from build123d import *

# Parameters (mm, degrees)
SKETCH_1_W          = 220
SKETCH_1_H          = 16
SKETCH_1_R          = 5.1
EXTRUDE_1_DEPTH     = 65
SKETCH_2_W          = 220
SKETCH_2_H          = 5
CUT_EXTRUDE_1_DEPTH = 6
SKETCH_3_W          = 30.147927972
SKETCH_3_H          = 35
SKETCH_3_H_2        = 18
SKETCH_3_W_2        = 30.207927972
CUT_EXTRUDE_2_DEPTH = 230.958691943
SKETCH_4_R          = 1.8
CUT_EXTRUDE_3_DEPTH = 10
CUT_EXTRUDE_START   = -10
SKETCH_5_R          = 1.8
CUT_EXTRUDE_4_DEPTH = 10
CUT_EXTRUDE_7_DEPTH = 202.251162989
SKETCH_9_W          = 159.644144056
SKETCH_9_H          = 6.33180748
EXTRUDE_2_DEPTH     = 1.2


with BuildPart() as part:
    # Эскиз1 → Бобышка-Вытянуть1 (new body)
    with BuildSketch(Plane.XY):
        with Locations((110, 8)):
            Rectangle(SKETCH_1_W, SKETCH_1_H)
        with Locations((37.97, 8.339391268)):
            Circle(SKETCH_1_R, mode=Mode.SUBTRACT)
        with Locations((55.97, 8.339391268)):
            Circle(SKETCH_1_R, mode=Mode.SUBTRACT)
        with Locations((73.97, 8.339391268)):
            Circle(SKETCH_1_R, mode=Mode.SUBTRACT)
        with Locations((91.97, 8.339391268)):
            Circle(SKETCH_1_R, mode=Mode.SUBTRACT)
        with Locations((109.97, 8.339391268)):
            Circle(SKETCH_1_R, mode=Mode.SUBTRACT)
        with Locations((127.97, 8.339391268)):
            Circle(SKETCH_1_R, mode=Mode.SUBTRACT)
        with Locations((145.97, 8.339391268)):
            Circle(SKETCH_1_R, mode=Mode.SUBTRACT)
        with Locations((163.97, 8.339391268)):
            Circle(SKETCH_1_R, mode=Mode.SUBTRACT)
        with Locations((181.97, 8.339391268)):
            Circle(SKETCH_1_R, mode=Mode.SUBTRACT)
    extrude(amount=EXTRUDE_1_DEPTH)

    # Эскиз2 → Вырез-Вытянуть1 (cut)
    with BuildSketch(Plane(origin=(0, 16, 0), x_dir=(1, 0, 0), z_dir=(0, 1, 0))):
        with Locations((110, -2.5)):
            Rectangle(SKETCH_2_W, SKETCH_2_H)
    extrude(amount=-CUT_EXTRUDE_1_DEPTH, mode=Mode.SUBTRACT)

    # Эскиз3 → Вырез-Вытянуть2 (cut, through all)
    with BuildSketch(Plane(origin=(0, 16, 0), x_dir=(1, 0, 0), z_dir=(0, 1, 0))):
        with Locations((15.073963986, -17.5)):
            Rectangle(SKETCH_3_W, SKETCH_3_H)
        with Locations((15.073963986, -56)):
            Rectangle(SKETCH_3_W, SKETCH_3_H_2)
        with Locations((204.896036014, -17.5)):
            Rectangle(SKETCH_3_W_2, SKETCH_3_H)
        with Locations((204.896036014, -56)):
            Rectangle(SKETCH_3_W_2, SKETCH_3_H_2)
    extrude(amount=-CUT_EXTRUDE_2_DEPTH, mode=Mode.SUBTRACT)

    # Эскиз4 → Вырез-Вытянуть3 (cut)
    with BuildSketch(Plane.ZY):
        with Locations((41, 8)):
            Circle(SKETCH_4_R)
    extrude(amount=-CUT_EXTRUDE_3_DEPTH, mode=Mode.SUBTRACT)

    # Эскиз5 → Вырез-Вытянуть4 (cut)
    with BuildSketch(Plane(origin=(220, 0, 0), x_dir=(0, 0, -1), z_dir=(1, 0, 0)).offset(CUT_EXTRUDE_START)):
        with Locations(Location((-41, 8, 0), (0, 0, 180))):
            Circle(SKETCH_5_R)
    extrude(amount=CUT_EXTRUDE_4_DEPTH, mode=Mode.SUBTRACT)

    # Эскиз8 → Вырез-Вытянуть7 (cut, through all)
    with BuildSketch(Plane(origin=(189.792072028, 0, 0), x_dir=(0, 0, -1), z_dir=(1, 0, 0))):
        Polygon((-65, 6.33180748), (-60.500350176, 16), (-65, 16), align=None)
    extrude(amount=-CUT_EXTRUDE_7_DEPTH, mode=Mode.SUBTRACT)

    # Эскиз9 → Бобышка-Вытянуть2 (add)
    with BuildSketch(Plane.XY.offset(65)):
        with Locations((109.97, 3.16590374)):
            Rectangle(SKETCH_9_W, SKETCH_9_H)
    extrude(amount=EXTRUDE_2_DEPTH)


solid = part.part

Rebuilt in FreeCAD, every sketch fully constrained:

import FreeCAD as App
import Part
import Sketcher
Q = App.Units.Quantity

doc = App.newDocument("Part")
params = doc.addObject("Spreadsheet::Sheet", "Params")
for row, (alias, value) in enumerate([
    ("sketch1_diameter", "10.2 mm"),
    ("sketch1_width", "220 mm"),
    ("sketch1_height", "16 mm"),
    ("pad1_length", "65 mm"),
    ("sketch2_width", "220 mm"),
    ("sketch2_height", "5 mm"),
    ("pocket1_length", "6 mm"),
    ("sketch3_height", "35 mm"),
    ("sketch3_height2", "18 mm"),
    ("sketch4_diameter", "3.6 mm"),
    ("pocket3_length", "10 mm"),
    ("sketch5_diameter", "3.6 mm"),
    ("pocket4_length", "10 mm"),
    ("pad2_length", "1.2 mm"),
], start=1):
    params.set(f"A{row}", alias)
    params.set(f"B{row}", "=" + value)
    params.setAlias(f"B{row}", alias)

body = doc.addObject("PartDesign::Body", "Body")

# Sketch on XY plane
sketch1 = body.newObject("Sketcher::SketchObject", "Sketch")
sketch1.AttachmentSupport = (doc.getObject("XY_Plane"), [""])
sketch1.MapMode = "FlatFace"
sketch1.addGeometry([
    Part.LineSegment(App.Vector(0, 16, 0), App.Vector(0, 0, 0)),  # 0
    Part.LineSegment(App.Vector(0, 0, 0), App.Vector(220, 0, 0)),  # 1
    Part.LineSegment(App.Vector(220, 0, 0), App.Vector(220, 16, 0)),  # 2
    Part.LineSegment(App.Vector(220, 16, 0), App.Vector(0, 16, 0)),  # 3
    Part.Circle(App.Vector(38, 8, 0), App.Vector(0, 0, 1), 5),  # 4
    Part.Circle(App.Vector(56, 8, 0), App.Vector(0, 0, 1), 5),  # 5
    Part.Circle(App.Vector(74, 8, 0), App.Vector(0, 0, 1), 5),  # 6
    Part.Circle(App.Vector(92, 8, 0), App.Vector(0, 0, 1), 5),  # 7
    Part.Circle(App.Vector(110, 8, 0), App.Vector(0, 0, 1), 5),  # 8
    Part.Circle(App.Vector(128, 8, 0), App.Vector(0, 0, 1), 5),  # 9
    Part.Circle(App.Vector(146, 8, 0), App.Vector(0, 0, 1), 5),  # 10
    Part.Circle(App.Vector(164, 8, 0), App.Vector(0, 0, 1), 5),  # 11
    Part.Circle(App.Vector(182, 8, 0), App.Vector(0, 0, 1), 5),  # 12
], False)
sketch1.addConstraint([
    Sketcher.Constraint("Coincident", 0, 2, 1, 1),
    Sketcher.Constraint("Coincident", 1, 2, 2, 1),
    Sketcher.Constraint("Coincident", 2, 2, 3, 1),
    Sketcher.Constraint("Coincident", 3, 2, 0, 1),
    Sketcher.Constraint("Vertical", 0),
    Sketcher.Constraint("Horizontal", 1),
    Sketcher.Constraint("Vertical", 2),
    Sketcher.Constraint("Horizontal", 3),
    Sketcher.Constraint("Coincident", 0, 2, -1, 1),
    Sketcher.Constraint("Equal", 4, 5),
    Sketcher.Constraint("Equal", 5, 6),
    Sketcher.Constraint("Equal", 6, 7),
    Sketcher.Constraint("Equal", 7, 8),
    Sketcher.Constraint("Equal", 8, 9),
    Sketcher.Constraint("Equal", 9, 10),
    Sketcher.Constraint("Equal", 10, 11),
    Sketcher.Constraint("Equal", 11, 12),
    Sketcher.Constraint("Horizontal", 4, 3, 5, 3),
    Sketcher.Constraint("Horizontal", 5, 3, 6, 3),
    Sketcher.Constraint("Horizontal", 6, 3, 7, 3),
    Sketcher.Constraint("Horizontal", 7, 3, 8, 3),
    Sketcher.Constraint("Horizontal", 8, 3, 9, 3),
    Sketcher.Constraint("Horizontal", 9, 3, 10, 3),
    Sketcher.Constraint("Horizontal", 10, 3, 11, 3),
    Sketcher.Constraint("Horizontal", 11, 3, 12, 3),
    Sketcher.Constraint("Diameter", 4, Q("10.2 mm")),
    Sketcher.Constraint("DistanceX", 1, 1, 1, 2, Q("220 mm")),
    Sketcher.Constraint("DistanceY", 0, 2, 0, 1, Q("16 mm")),
    Sketcher.Constraint("DistanceX", 4, 3, 5, 3, Q("18 mm")),
    Sketcher.Constraint("DistanceX", 5, 3, 6, 3, Q("18 mm")),
    Sketcher.Constraint("DistanceX", 6, 3, 7, 3, Q("18 mm")),
    Sketcher.Constraint("DistanceX", 7, 3, 8, 3, Q("18 mm")),
    Sketcher.Constraint("DistanceX", 8, 3, 9, 3, Q("18 mm")),
    Sketcher.Constraint("DistanceX", 9, 3, 10, 3, Q("18 mm")),
    Sketcher.Constraint("DistanceX", 10, 3, 11, 3, Q("18 mm")),
    Sketcher.Constraint("DistanceX", 11, 3, 12, 3, Q("18 mm")),
    Sketcher.Constraint("DistanceX", -1, 1, 4, 3, Q("37.97 mm")),
    Sketcher.Constraint("DistanceY", -1, 1, 4, 3, Q("8.339391 mm")),
])
sketch1.setExpression("Constraints[25]", "Params.sketch1_diameter")
sketch1.setExpression("Constraints[26]", "Params.sketch1_width")
sketch1.setExpression("Constraints[27]", "Params.sketch1_height")
pad1 = body.newObject("PartDesign::Pad", "Pad")
pad1.Profile = sketch1
pad1.setExpression("Length", "Params.pad1_length")

# Sketch on XZ plane
sketch2 = body.newObject("Sketcher::SketchObject", "Sketch001")
sketch2.AttachmentSupport = (doc.getObject("XZ_Plane"), [""])
sketch2.MapMode = "FlatFace"
sketch2.AttachmentOffset = App.Placement(App.Vector(0, 0, -16), App.Rotation())
sketch2.addGeometry([
    Part.LineSegment(App.Vector(0, 0, 0), App.Vector(0, 5, 0)),
    Part.LineSegment(App.Vector(0, 5, 0), App.Vector(220, 5, 0)),
    Part.LineSegment(App.Vector(220, 5, 0), App.Vector(220, 0, 0)),
    Part.LineSegment(App.Vector(220, 0, 0), App.Vector(0, 0, 0)),
], False)
sketch2.addConstraint([
    Sketcher.Constraint("Coincident", 0, 2, 1, 1),
    Sketcher.Constraint("Coincident", 1, 2, 2, 1),
    Sketcher.Constraint("Coincident", 2, 2, 3, 1),
    Sketcher.Constraint("Coincident", 3, 2, 0, 1),
    Sketcher.Constraint("Vertical", 0),
    Sketcher.Constraint("Horizontal", 1),
    Sketcher.Constraint("Vertical", 2),
    Sketcher.Constraint("Horizontal", 3),
    Sketcher.Constraint("Coincident", 3, 2, -1, 1),
    Sketcher.Constraint("DistanceX", 1, 1, 1, 2, Q("220 mm")),
    Sketcher.Constraint("DistanceY", 0, 1, 0, 2, Q("5 mm")),
])
sketch2.setExpression("Constraints[9]", "Params.sketch2_width")
sketch2.setExpression("Constraints[10]", "Params.sketch2_height")
pocket1 = body.newObject("PartDesign::Pocket", "Pocket")
pocket1.Profile = sketch2
pocket1.setExpression("Length", "Params.pocket1_length")
pocket1.Reversed = True

# Sketch on XZ plane
sketch3 = body.newObject("Sketcher::SketchObject", "Sketch002")
sketch3.AttachmentSupport = (doc.getObject("XZ_Plane"), [""])
sketch3.MapMode = "FlatFace"
sketch3.AttachmentOffset = App.Placement(App.Vector(0, 0, -16), App.Rotation())
sketch3.addGeometry([
    Part.LineSegment(App.Vector(0, 0, 0), App.Vector(0, 35, 0)),  # 0
    Part.LineSegment(App.Vector(0, 35, 0), App.Vector(30, 35, 0)),  # 1
    Part.LineSegment(App.Vector(30, 35, 0), App.Vector(30, 0, 0)),  # 2
    Part.LineSegment(App.Vector(30, 0, 0), App.Vector(0, 0, 0)),  # 3
    Part.LineSegment(App.Vector(0, 47, 0), App.Vector(0, 65, 0)),  # 4
    Part.LineSegment(App.Vector(0, 65, 0), App.Vector(30, 65, 0)),  # 5
    Part.LineSegment(App.Vector(30, 65, 0), App.Vector(30, 47, 0)),  # 6
    Part.LineSegment(App.Vector(30, 47, 0), App.Vector(0, 47, 0)),  # 7
    Part.LineSegment(App.Vector(190, 0, 0), App.Vector(190, 35, 0)),  # 8
    Part.LineSegment(App.Vector(190, 35, 0), App.Vector(220, 35, 0)),  # 9
    Part.LineSegment(App.Vector(220, 35, 0), App.Vector(220, 0, 0)),  # 10
    Part.LineSegment(App.Vector(220, 0, 0), App.Vector(190, 0, 0)),  # 11
    Part.LineSegment(App.Vector(190, 47, 0), App.Vector(190, 65, 0)),  # 12
    Part.LineSegment(App.Vector(190, 65, 0), App.Vector(220, 65, 0)),  # 13
    Part.LineSegment(App.Vector(220, 65, 0), App.Vector(220, 47, 0)),  # 14
    Part.LineSegment(App.Vector(220, 47, 0), App.Vector(190, 47, 0)),  # 15
], False)
sketch3.addConstraint([
    Sketcher.Constraint("Coincident", 0, 2, 1, 1),
    Sketcher.Constraint("Coincident", 1, 2, 2, 1),
    Sketcher.Constraint("Coincident", 2, 2, 3, 1),
    Sketcher.Constraint("Coincident", 3, 2, 0, 1),
    Sketcher.Constraint("Coincident", 4, 2, 5, 1),
    Sketcher.Constraint("Coincident", 5, 2, 6, 1),
    Sketcher.Constraint("Coincident", 6, 2, 7, 1),
    Sketcher.Constraint("Coincident", 7, 2, 4, 1),
    Sketcher.Constraint("Coincident", 8, 2, 9, 1),
    Sketcher.Constraint("Coincident", 9, 2, 10, 1),
    Sketcher.Constraint("Coincident", 10, 2, 11, 1),
    Sketcher.Constraint("Coincident", 11, 2, 8, 1),
    Sketcher.Constraint("Coincident", 12, 2, 13, 1),
    Sketcher.Constraint("Coincident", 13, 2, 14, 1),
    Sketcher.Constraint("Coincident", 14, 2, 15, 1),
    Sketcher.Constraint("Coincident", 15, 2, 12, 1),
    Sketcher.Constraint("Vertical", 0),
    Sketcher.Constraint("Horizontal", 1),
    Sketcher.Constraint("Vertical", 2),
    Sketcher.Constraint("Horizontal", 3),
    Sketcher.Constraint("Vertical", 4),
    Sketcher.Constraint("Horizontal", 5),
    Sketcher.Constraint("Vertical", 6),
    Sketcher.Constraint("Horizontal", 7),
    Sketcher.Constraint("Vertical", 8),
    Sketcher.Constraint("Horizontal", 9),
    Sketcher.Constraint("Vertical", 10),
    Sketcher.Constraint("Horizontal", 11),
    Sketcher.Constraint("Vertical", 12),
    Sketcher.Constraint("Horizontal", 13),
    Sketcher.Constraint("Vertical", 14),
    Sketcher.Constraint("Horizontal", 15),
    Sketcher.Constraint("Coincident", 3, 2, -1, 1),
    Sketcher.Constraint("PointOnObject", 4, 2, -2),
    Sketcher.Constraint("PointOnObject", 10, 2, -1),
    Sketcher.Constraint("Horizontal", 1, 2, 8, 2),
    Sketcher.Constraint("Horizontal", 5, 2, 12, 2),
    Sketcher.Constraint("Horizontal", 7, 2, 14, 2),
    Sketcher.Constraint("Vertical", 2, 2, 5, 2),
    Sketcher.Constraint("Vertical", 11, 2, 12, 2),
    Sketcher.Constraint("Vertical", 10, 2, 13, 2),
    Sketcher.Constraint("DistanceY", 0, 1, 0, 2, Q("35 mm")),
    Sketcher.Constraint("DistanceY", 4, 1, 4, 2, Q("18 mm")),
    Sketcher.Constraint("DistanceY", -1, 1, 4, 2, Q("65 mm")),
    Sketcher.Constraint("DistanceX", -1, 1, 9, 2, Q("220 mm")),
    Sketcher.Constraint("DistanceX", 1, 1, 1, 2, Q("30.147928 mm")),
    Sketcher.Constraint("DistanceX", 9, 1, 9, 2, Q("30.207928 mm")),
])
sketch3.setExpression("Constraints[41]", "Params.sketch3_height")
sketch3.setExpression("Constraints[42]", "Params.sketch3_height2")
pocket2 = body.newObject("PartDesign::Pocket", "Pocket001")
pocket2.Profile = sketch3
pocket2.Type = "ThroughAll"
pocket2.Reversed = True

# Sketch on YZ plane
sketch4 = body.newObject("Sketcher::SketchObject", "Sketch003")
sketch4.AttachmentSupport = (doc.getObject("YZ_Plane"), [""])
sketch4.MapMode = "FlatFace"
sketch4.addGeometry(Part.Circle(App.Vector(8, 41, 0), App.Vector(0, 0, 1), 1.8), False)
sketch4.addConstraint([
    Sketcher.Constraint("Diameter", 0, Q("3.6 mm")),
    Sketcher.Constraint("DistanceX", -1, 1, 0, 3, Q("8 mm")),
    Sketcher.Constraint("DistanceY", -1, 1, 0, 3, Q("41 mm")),
])
sketch4.setExpression("Constraints[0]", "Params.sketch4_diameter")
pocket3 = body.newObject("PartDesign::Pocket", "Pocket002")
pocket3.Profile = sketch4
pocket3.setExpression("Length", "Params.pocket3_length")
pocket3.Reversed = True

# Sketch on YZ plane
sketch5 = body.newObject("Sketcher::SketchObject", "Sketch004")
sketch5.AttachmentSupport = (doc.getObject("YZ_Plane"), [""])
sketch5.MapMode = "FlatFace"
sketch5.AttachmentOffset = App.Placement(App.Vector(0, 0, 210), App.Rotation())
sketch5.addGeometry(Part.Circle(App.Vector(8, 41, 0), App.Vector(0, 0, 1), 1.8), False)
sketch5.addConstraint([
    Sketcher.Constraint("Diameter", 0, Q("3.6 mm")),
    Sketcher.Constraint("DistanceX", -1, 1, 0, 3, Q("8 mm")),
    Sketcher.Constraint("DistanceY", -1, 1, 0, 3, Q("41 mm")),
])
sketch5.setExpression("Constraints[0]", "Params.sketch5_diameter")
pocket4 = body.newObject("PartDesign::Pocket", "Pocket003")
pocket4.Profile = sketch5
pocket4.setExpression("Length", "Params.pocket4_length")
pocket4.Reversed = True

# Sketch on YZ plane
sketch6 = body.newObject("Sketcher::SketchObject", "Sketch005")
sketch6.AttachmentSupport = (doc.getObject("YZ_Plane"), [""])
sketch6.MapMode = "FlatFace"
sketch6.AttachmentOffset = App.Placement(App.Vector(0, 0, 189.792072), App.Rotation())
sketch6.addGeometry([
    Part.LineSegment(App.Vector(6.3, 65, 0), App.Vector(16, 60.5, 0)),
    Part.LineSegment(App.Vector(16, 60.5, 0), App.Vector(16, 65, 0)),
    Part.LineSegment(App.Vector(16, 65, 0), App.Vector(6.3, 65, 0)),
], False)
sketch6.addConstraint([
    Sketcher.Constraint("Coincident", 0, 2, 1, 1),
    Sketcher.Constraint("Coincident", 1, 2, 2, 1),
    Sketcher.Constraint("Coincident", 2, 2, 0, 1),
    Sketcher.Constraint("Vertical", 1),
    Sketcher.Constraint("Horizontal", 2),
    Sketcher.Constraint("DistanceX", -1, 1, 0, 2, Q("16 mm")),
    Sketcher.Constraint("DistanceY", -1, 1, 1, 2, Q("65 mm")),
    Sketcher.Constraint("DistanceY", 1, 1, 1, 2, Q("4.49965 mm")),
    Sketcher.Constraint("DistanceX", 2, 2, 2, 1, Q("9.668193 mm")),
])
pocket5 = body.newObject("PartDesign::Pocket", "Pocket004")
pocket5.Profile = sketch6
pocket5.Type = "ThroughAll"

# Sketch on XY plane
sketch7 = body.newObject("Sketcher::SketchObject", "Sketch006")
sketch7.AttachmentSupport = (doc.getObject("XY_Plane"), [""])
sketch7.MapMode = "FlatFace"
sketch7.AttachmentOffset = App.Placement(App.Vector(0, 0, 65), App.Rotation())
sketch7.addGeometry([
    Part.LineSegment(App.Vector(30, 6, 0), App.Vector(30, 0, 0)),
    Part.LineSegment(App.Vector(30, 0, 0), App.Vector(190, 0, 0)),
    Part.LineSegment(App.Vector(190, 0, 0), App.Vector(190, 6, 0)),
    Part.LineSegment(App.Vector(190, 6, 0), App.Vector(30, 6, 0)),
], False)
sketch7.addConstraint([
    Sketcher.Constraint("Coincident", 0, 2, 1, 1),
    Sketcher.Constraint("Coincident", 1, 2, 2, 1),
    Sketcher.Constraint("Coincident", 2, 2, 3, 1),
    Sketcher.Constraint("Coincident", 3, 2, 0, 1),
    Sketcher.Constraint("Vertical", 0),
    Sketcher.Constraint("Horizontal", 1),
    Sketcher.Constraint("Vertical", 2),
    Sketcher.Constraint("Horizontal", 3),
    Sketcher.Constraint("PointOnObject", 0, 2, -1),
    Sketcher.Constraint("DistanceX", 1, 1, 1, 2, Q("159.644144 mm")),
    Sketcher.Constraint("DistanceY", 0, 2, 0, 1, Q("6.331807 mm")),
    Sketcher.Constraint("DistanceX", -1, 1, 0, 2, Q("30.147928 mm")),
])
pad2 = body.newObject("PartDesign::Pad", "Pad001")
pad2.Profile = sketch7
pad2.setExpression("Length", "Params.pad2_length")

doc.recompute()
